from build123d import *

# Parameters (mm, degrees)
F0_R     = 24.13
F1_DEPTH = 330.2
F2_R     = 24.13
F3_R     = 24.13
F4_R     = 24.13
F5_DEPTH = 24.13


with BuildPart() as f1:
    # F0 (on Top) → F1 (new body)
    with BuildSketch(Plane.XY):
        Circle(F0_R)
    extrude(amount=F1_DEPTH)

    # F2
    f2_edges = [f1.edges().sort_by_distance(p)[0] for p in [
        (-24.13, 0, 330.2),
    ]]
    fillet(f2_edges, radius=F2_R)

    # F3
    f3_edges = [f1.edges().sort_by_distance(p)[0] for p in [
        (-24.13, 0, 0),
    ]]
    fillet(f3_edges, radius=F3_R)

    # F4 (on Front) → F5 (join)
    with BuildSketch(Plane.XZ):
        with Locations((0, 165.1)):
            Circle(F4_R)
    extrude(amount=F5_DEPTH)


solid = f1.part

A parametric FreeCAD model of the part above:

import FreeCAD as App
import Part
import Sketcher

V = App.Vector
Q = App.Units.Quantity


def edges_at(feature, points):
    """Names of the edges that pass closest to the given points."""
    edges = feature.Shape.Edges
    near = lambda p: min(range(len(edges)), key=lambda i: edges[i].distToShape(Part.Vertex(*p))[0])
    return sorted({f"Edge{near(p) + 1}" for p in points})

doc = App.newDocument("Part")
body = doc.addObject("PartDesign::Body", "Body")

# Sketch on XY plane
sketch1 = doc.addObject("Sketcher::SketchObject", "Sketch")
body.addObject(sketch1)
sketch1.AttachmentSupport = (doc.XY_Plane, [""])
sketch1.MapMode = "FlatFace"
sketch1.addGeometry(Part.Circle(V(0, 0, 0), V(0, 0, 1), 24.13), False)
sketch1.addConstraint([
    Sketcher.Constraint("Coincident", 0, 3, -1, 1),
    Sketcher.Constraint("Diameter", 0, Q("1.9 in")),
])
pad1 = doc.addObject("PartDesign::Pad", "Pad")
body.addObject(pad1)
pad1.Profile = sketch1
pad1.Length = Q("13 in")
doc.recompute()

fillet = doc.addObject("PartDesign::Fillet", "Fillet")
body.addObject(fillet)
fillet.Base = (pad1, edges_at(pad1, [(-24.13, 0, 330.2)]))
fillet.Radius = Q("0.95 in")
doc.recompute()

fillet2 = doc.addObject("PartDesign::Fillet", "Fillet001")
body.addObject(fillet2)
fillet2.Base = (fillet, edges_at(fillet, [(-24.13, 0, 0)]))
fillet2.Radius = Q("0.95 in")

# Sketch on XZ plane
sketch2 = doc.addObject("Sketcher::SketchObject", "Sketch001")
body.addObject(sketch2)
sketch2.AttachmentSupport = (doc.XZ_Plane, [""])
sketch2.MapMode = "FlatFace"
sketch2.addGeometry(Part.Circle(V(0, 165.1, 0), V(0, 0, 1), 24.13), False)
sketch2.addConstraint([
    Sketcher.Constraint("PointOnObject", 0, 3, -2),
    Sketcher.Constraint("Diameter", 0, Q("1.9 in")),
    Sketcher.Constraint("DistanceY", -1, 1, 0, 3, Q("6.5 in")),
])
pad2 = doc.addObject("PartDesign::Pad", "Pad001")
body.addObject(pad2)
pad2.Profile = sketch2
pad2.Length = Q("0.95 in")

doc.recompute()
